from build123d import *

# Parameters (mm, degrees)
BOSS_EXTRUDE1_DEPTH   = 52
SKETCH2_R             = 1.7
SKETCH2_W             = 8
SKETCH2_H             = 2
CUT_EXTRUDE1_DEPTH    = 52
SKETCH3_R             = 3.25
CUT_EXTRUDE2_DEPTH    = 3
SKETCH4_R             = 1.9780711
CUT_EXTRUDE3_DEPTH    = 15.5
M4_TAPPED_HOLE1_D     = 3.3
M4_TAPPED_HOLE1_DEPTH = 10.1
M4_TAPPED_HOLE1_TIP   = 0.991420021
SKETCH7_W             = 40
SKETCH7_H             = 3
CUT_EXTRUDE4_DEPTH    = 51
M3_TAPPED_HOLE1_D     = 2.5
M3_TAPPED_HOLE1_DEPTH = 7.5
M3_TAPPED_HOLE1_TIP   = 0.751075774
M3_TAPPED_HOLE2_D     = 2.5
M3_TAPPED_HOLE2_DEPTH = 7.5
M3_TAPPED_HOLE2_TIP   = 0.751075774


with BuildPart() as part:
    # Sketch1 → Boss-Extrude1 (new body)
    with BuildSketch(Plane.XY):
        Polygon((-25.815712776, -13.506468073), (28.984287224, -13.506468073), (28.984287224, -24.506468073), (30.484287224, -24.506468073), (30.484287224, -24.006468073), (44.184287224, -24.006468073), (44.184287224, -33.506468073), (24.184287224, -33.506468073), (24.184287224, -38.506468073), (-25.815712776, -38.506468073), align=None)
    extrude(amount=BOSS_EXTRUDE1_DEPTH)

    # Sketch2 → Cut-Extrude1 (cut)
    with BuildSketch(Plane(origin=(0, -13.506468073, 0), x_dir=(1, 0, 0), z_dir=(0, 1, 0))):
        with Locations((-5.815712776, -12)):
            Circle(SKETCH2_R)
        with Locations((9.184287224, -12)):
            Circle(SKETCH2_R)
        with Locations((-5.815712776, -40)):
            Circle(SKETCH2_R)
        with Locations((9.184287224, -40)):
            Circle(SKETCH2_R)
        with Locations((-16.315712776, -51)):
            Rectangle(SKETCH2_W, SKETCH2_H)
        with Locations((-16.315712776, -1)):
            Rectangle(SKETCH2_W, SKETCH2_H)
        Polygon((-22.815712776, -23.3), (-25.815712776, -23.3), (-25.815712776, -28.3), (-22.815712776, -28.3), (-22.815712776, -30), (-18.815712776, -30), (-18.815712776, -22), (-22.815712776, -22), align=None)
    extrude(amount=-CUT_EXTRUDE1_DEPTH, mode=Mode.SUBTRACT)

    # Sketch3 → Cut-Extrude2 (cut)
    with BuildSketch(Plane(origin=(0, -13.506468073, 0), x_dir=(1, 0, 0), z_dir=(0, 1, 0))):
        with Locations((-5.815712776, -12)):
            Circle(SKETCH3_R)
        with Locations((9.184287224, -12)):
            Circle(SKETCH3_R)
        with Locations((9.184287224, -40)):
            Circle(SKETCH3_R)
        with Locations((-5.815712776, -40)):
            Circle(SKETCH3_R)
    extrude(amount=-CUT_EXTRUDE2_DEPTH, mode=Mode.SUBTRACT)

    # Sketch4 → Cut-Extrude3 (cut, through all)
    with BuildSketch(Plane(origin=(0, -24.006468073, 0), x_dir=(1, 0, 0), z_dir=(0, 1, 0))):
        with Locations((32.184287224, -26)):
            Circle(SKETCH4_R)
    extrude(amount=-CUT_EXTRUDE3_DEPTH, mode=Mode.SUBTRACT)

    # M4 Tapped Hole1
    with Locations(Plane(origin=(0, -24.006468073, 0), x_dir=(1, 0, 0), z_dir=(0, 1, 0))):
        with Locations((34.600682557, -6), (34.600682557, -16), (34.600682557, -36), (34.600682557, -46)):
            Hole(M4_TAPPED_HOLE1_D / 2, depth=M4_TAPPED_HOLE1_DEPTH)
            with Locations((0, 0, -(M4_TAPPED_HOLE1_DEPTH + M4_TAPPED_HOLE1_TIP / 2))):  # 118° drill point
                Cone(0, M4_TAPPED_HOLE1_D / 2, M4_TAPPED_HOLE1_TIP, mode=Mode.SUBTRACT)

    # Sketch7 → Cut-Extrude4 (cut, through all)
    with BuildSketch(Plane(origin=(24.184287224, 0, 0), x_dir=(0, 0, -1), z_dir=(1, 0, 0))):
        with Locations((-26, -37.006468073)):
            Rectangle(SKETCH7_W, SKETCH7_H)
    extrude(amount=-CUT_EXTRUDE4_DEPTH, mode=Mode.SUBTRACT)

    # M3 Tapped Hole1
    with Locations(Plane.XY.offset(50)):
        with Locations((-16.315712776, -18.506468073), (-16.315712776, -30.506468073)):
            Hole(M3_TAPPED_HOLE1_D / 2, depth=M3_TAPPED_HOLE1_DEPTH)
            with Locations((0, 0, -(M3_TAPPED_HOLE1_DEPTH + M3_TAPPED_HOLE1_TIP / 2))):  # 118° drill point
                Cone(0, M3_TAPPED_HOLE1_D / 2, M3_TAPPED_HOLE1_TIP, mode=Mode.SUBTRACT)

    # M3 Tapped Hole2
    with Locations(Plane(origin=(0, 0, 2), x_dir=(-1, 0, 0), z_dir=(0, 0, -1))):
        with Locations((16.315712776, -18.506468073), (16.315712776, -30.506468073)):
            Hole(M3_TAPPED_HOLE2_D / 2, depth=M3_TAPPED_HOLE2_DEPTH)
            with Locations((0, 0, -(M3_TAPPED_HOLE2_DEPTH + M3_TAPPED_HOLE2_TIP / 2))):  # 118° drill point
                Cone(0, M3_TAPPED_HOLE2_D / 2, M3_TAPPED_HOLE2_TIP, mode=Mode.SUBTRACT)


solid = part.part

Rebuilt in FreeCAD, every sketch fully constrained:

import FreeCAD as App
import Part
import Sketcher

V = App.Vector


def add_polygon(sketch, points):
    """Adds a closed chain of lines whose ends are joined by coincident constraints."""
    first, n = sketch.GeometryCount, len(points)
    for a, b in zip(points, points[1:] + points[:1]):
        sketch.addGeometry(Part.LineSegment(App.Vector(*a, 0), App.Vector(*b, 0)), False)
    for i in range(n):
        sketch.addConstraint(Sketcher.Constraint("Coincident", first + i, 2, first + (i + 1) % n, 1))

doc = App.newDocument("Part")
body = doc.addObject("PartDesign::Body", "Body")

# Sketch on XY plane
sketch1 = body.newObject("Sketcher::SketchObject", "Sketch")
sketch1.AttachmentSupport = (doc.getObject("XY_Plane"), [""])
sketch1.MapMode = "FlatFace"
add_polygon(sketch1, [(29, -13.5), (-25.8, -13.5), (-25.8, -38.5), (24.2, -38.5), (24.2, -33.5), (44.2, -33.5), (44.2, -24), (30.5, -24), (30.5, -24.5), (29, -24.5)])  # lines 0-9
sketch1.addConstraint([
    Sketcher.Constraint("Horizontal", 0),
    Sketcher.Constraint("Vertical", 1),
    Sketcher.Constraint("Horizontal", 2),
    Sketcher.Constraint("Vertical", 3),
    Sketcher.Constraint("Horizontal", 4),
    Sketcher.Constraint("Vertical", 5),
    Sketcher.Constraint("Horizontal", 6),
    Sketcher.Constraint("Vertical", 7),
    Sketcher.Constraint("Horizontal", 8),
    Sketcher.Constraint("Vertical", 9),
    Sketcher.Constraint("DistanceX", 2, 1, 2, 2, 50.0),
    Sketcher.Constraint("DistanceX", 4, 1, 4, 2, 20.0),
    Sketcher.Constraint("DistanceY", 1, 2, 1, 1, 25.0),
    Sketcher.Constraint("DistanceY", 3, 1, 3, 2, 5.0),
    Sketcher.Constraint("DistanceY", 9, 1, 9, 2, 11.0),
    Sketcher.Constraint("DistanceX", 0, 2, 0, 1, 54.8),
    Sketcher.Constraint("DistanceX", 6, 2, 6, 1, 13.7),
    Sketcher.Constraint("DistanceY", 5, 1, 5, 2, 9.5),
    Sketcher.Constraint("DistanceY", 0, 2, -1, 1, 13.506468),
    Sketcher.Constraint("DistanceX", 0, 2, -1, 1, 25.815713),
])
pad1 = body.newObject("PartDesign::Pad", "Pad")
pad1.Profile = sketch1
pad1.Length = 52

# Sketch on XZ plane
sketch2 = body.newObject("Sketcher::SketchObject", "Sketch001")
sketch2.AttachmentSupport = (doc.getObject("XZ_Plane"), [""])
sketch2.MapMode = "FlatFace"
sketch2.AttachmentOffset = App.Placement(V(0, 0, 13.506468), App.Rotation())
sketch2.addGeometry(Part.Circle(V(-5.8, 12, 0), V(0, 0, 1), 1.7), False)  # 0
sketch2.addGeometry(Part.Circle(V(9.2, 12, 0), V(0, 0, 1), 1.7), False)  # 1
sketch2.addGeometry(Part.Circle(V(-5.8, 40, 0), V(0, 0, 1), 1.7), False)  # 2
sketch2.addGeometry(Part.Circle(V(9.2, 40, 0), V(0, 0, 1), 1.7), False)  # 3
add_polygon(sketch2, [(-20.3, 50), (-20.3, 52), (-12.3, 52), (-12.3, 50)])  # lines 4-7
add_polygon(sketch2, [(-20.3, 0), (-20.3, 2), (-12.3, 2), (-12.3, 0)])  # lines 8-11
add_polygon(sketch2, [(-22.8, 23.3), (-25.8, 23.3), (-25.8, 28.3), (-22.8, 28.3), (-22.8, 30), (-18.8, 30), (-18.8, 22), (-22.8, 22)])  # lines 12-19
sketch2.addConstraint([
    Sketcher.Constraint("Vertical", 4),
    Sketcher.Constraint("Horizontal", 5),
    Sketcher.Constraint("Vertical", 6),
    Sketcher.Constraint("Horizontal", 7),
    Sketcher.Constraint("Vertical", 8),
    Sketcher.Constraint("Horizontal", 9),
    Sketcher.Constraint("Vertical", 10),
    Sketcher.Constraint("Horizontal", 11),
    Sketcher.Constraint("Horizontal", 12),
    Sketcher.Constraint("Vertical", 13),
    Sketcher.Constraint("Horizontal", 14),
    Sketcher.Constraint("Vertical", 15),
    Sketcher.Constraint("Horizontal", 16),
    Sketcher.Constraint("Vertical", 17),
    Sketcher.Constraint("Horizontal", 18),
    Sketcher.Constraint("Vertical", 19),
    Sketcher.Constraint("Equal", 0, 1),
    Sketcher.Constraint("Equal", 1, 2),
    Sketcher.Constraint("Equal", 2, 3),
    Sketcher.Constraint("PointOnObject", 10, 2, -1),
    Sketcher.Constraint("Horizontal", 0, 3, 1, 3),
    Sketcher.Constraint("Horizontal", 2, 3, 3, 3),
    Sketcher.Constraint("Vertical", 0, 3, 2, 3),
    Sketcher.Constraint("Vertical", 1, 3, 3, 3),
    Sketcher.Constraint("Vertical", 7, 2, 8, 2),
    Sketcher.Constraint("Vertical", 6, 2, 9, 2),
    Sketcher.Constraint("Vertical", 15, 2, 18, 2),
    Sketcher.Constraint("Equal", 6, 8),
    Sketcher.Constraint("Equal", 11, 17),
    Sketcher.Constraint("Diameter", 0, 3.4),
    Sketcher.Constraint("DistanceX", 5, 1, 5, 2, 8.0),
    Sketcher.Constraint("DistanceX", 12, 2, 12, 1, 3.0),
    Sketcher.Constraint("DistanceX", 16, 1, 16, 2, 4.0),
    Sketcher.Constraint("DistanceY", 4, 1, 4, 2, 2.0),
    Sketcher.Constraint("DistanceY", 13, 1, 13, 2, 5.0),
    Sketcher.Constraint("DistanceY", 15, 1, 15, 2, 1.7),
    Sketcher.Constraint("DistanceY", -1, 1, 0, 3, 12.0),
    Sketcher.Constraint("DistanceY", -1, 1, 2, 3, 40.0),
    Sketcher.Constraint("DistanceY", -1, 1, 4, 2, 52.0),
    Sketcher.Constraint("DistanceY", -1, 1, 15, 2, 30.0),
    Sketcher.Constraint("DistanceX", 0, 3, 1, 3, 15.0),
    Sketcher.Constraint("DistanceX", 12, 2, 0, 3, 20.0),
    Sketcher.Constraint("DistanceX", 4, 2, 2, 3, 14.5),
    Sketcher.Constraint("DistanceX", 0, 3, -1, 1, 5.815713),
])
pocket1 = body.newObject("PartDesign::Pocket", "Pocket")
pocket1.Profile = sketch2
pocket1.Length = 52
pocket1.Reversed = True

# Sketch on XZ plane
sketch3 = body.newObject("Sketcher::SketchObject", "Sketch002")
sketch3.AttachmentSupport = (doc.getObject("XZ_Plane"), [""])
sketch3.MapMode = "FlatFace"
sketch3.AttachmentOffset = App.Placement(V(0, 0, 13.506468), App.Rotation())
sketch3.addGeometry([
    Part.Circle(V(-5.8, 12, 0), V(0, 0, 1), 3.2),
    Part.Circle(V(9.2, 12, 0), V(0, 0, 1), 3.2),
    Part.Circle(V(9.2, 40, 0), V(0, 0, 1), 3.2),
    Part.Circle(V(-5.8, 40, 0), V(0, 0, 1), 3.2),
], False)
sketch3.addConstraint([
    Sketcher.Constraint("Equal", 0, 1),
    Sketcher.Constraint("Equal", 1, 2),
    Sketcher.Constraint("Equal", 2, 3),
    Sketcher.Constraint("Horizontal", 0, 3, 1, 3),
    Sketcher.Constraint("Horizontal", 2, 3, 3, 3),
    Sketcher.Constraint("Vertical", 1, 3, 2, 3),
    Sketcher.Constraint("Vertical", 0, 3, 3, 3),
    Sketcher.Constraint("Diameter", 0, 6.5),
    Sketcher.Constraint("DistanceY", -1, 1, 0, 3, 12.0),
    Sketcher.Constraint("DistanceY", -1, 1, 2, 3, 40.0),
    Sketcher.Constraint("DistanceX", 0, 3, 1, 3, 15.0),
    Sketcher.Constraint("DistanceX", 0, 3, -1, 1, 5.815713),
])
pocket2 = body.newObject("PartDesign::Pocket", "Pocket001")
pocket2.Profile = sketch3
pocket2.Length = 3
pocket2.Reversed = True

# Sketch on XZ plane
sketch4 = body.newObject("Sketcher::SketchObject", "Sketch003")
sketch4.AttachmentSupport = (doc.getObject("XZ_Plane"), [""])
sketch4.MapMode = "FlatFace"
sketch4.AttachmentOffset = App.Placement(V(0, 0, 24.006468), App.Rotation())
sketch4.addGeometry(Part.Circle(V(32.2, 26, 0), V(0, 0, 1), 2), False)
sketch4.addConstraint([
    Sketcher.Constraint("DistanceY", -1, 1, 0, 3, 26.0),
    Sketcher.Constraint("Diameter", 0, 3.956142),
    Sketcher.Constraint("DistanceX", -1, 1, 0, 3, 32.184287),
])
pocket3 = body.newObject("PartDesign::Pocket", "Pocket002")
pocket3.Profile = sketch4
pocket3.Type = "ThroughAll"
pocket3.Reversed = True

# Sketch on XZ plane
sketch5 = body.newObject("Sketcher::SketchObject", "Sketch004")
sketch5.AttachmentSupport = (doc.getObject("XZ_Plane"), [""])
sketch5.MapMode = "FlatFace"
sketch5.AttachmentOffset = App.Placement(V(0, 0, 24.006468), App.Rotation())
sketch5.addGeometry([
    Part.Circle(V(34.6, 6, 0), V(0, 0, 1), 1.6),
    Part.Circle(V(34.6, 16, 0), V(0, 0, 1), 1.6),
    Part.Circle(V(34.6, 36, 0), V(0, 0, 1), 1.6),
    Part.Circle(V(34.6, 46, 0), V(0, 0, 1), 1.6),
], False)
sketch5.addConstraint([
    Sketcher.Constraint("Equal", 0, 1),
    Sketcher.Constraint("Equal", 1, 2),
    Sketcher.Constraint("Equal", 2, 3),
    Sketcher.Constraint("Vertical", 0, 3, 1, 3),
    Sketcher.Constraint("Vertical", 1, 3, 2, 3),
    Sketcher.Constraint("Vertical", 2, 3, 3, 3),
    Sketcher.Constraint("Diameter", 0, 3.3),
    Sketcher.Constraint("DistanceY", -1, 1, 0, 3, 6.0),
    Sketcher.Constraint("DistanceY", -1, 1, 1, 3, 16.0),
    Sketcher.Constraint("DistanceY", -1, 1, 2, 3, 36.0),
    Sketcher.Constraint("DistanceY", -1, 1, 3, 3, 46.0),
    Sketcher.Constraint("DistanceX", -1, 1, 0, 3, 34.600683),
])
doc.recompute()
hole = body.newObject("PartDesign::Hole", "Hole")
hole.Profile = sketch5
hole.ThreadType = "None"
hole.Diameter = 3.3
hole.DepthType = "Dimension"
hole.Depth = 10.1
hole.DrillPoint = "Angled"
hole.DrillPointAngle = 118
hole.Reversed = True

# Sketch on YZ plane
sketch6 = body.newObject("Sketcher::SketchObject", "Sketch005")
sketch6.AttachmentSupport = (doc.getObject("YZ_Plane"), [""])
sketch6.MapMode = "FlatFace"
sketch6.AttachmentOffset = App.Placement(V(0, 0, 24.184287), App.Rotation())
add_polygon(sketch6, [(-35.5, 46), (-38.5, 46), (-38.5, 6), (-35.5, 6)])  # lines 0-3
sketch6.addConstraint([
    Sketcher.Constraint("Horizontal", 0),
    Sketcher.Constraint("Vertical", 1),
    Sketcher.Constraint("Horizontal", 2),
    Sketcher.Constraint("Vertical", 3),
    Sketcher.Constraint("DistanceX", 0, 2, 0, 1, 3.0),
    Sketcher.Constraint("DistanceY", 1, 2, 1, 1, 40.0),
    Sketcher.Constraint("DistanceY", -1, 1, 0, 2, 46.0),
    Sketcher.Constraint("DistanceX", 0, 2, -1, 1, 38.506468),
])
pocket4 = body.newObject("PartDesign::Pocket", "Pocket003")
pocket4.Profile = sketch6
pocket4.Type = "ThroughAll"

# Sketch on XY plane
sketch7 = body.newObject("Sketcher::SketchObject", "Sketch006")
sketch7.AttachmentSupport = (doc.getObject("XY_Plane"), [""])
sketch7.MapMode = "FlatFace"
sketch7.AttachmentOffset = App.Placement(V(0, 0, 50), App.Rotation())
sketch7.addGeometry([
    Part.Circle(V(-16.3, -18.5, 0), V(0, 0, 1), 1.2),
    Part.Circle(V(-16.3, -30.5, 0), V(0, 0, 1), 1.2),
], False)
sketch7.addConstraint([
    Sketcher.Constraint("Equal", 0, 1),
    Sketcher.Constraint("Vertical", 0, 3, 1, 3),
    Sketcher.Constraint("Diameter", 0, 2.5),
    Sketcher.Constraint("DistanceY", 1, 3, 0, 3, 12.0),
    Sketcher.Constraint("DistanceY", 0, 3, -1, 1, 18.506468),
    Sketcher.Constraint("DistanceX", 0, 3, -1, 1, 16.315713),
])
doc.recompute()
hole2 = body.newObject("PartDesign::Hole", "Hole001")
hole2.Profile = sketch7
hole2.ThreadType = "None"
hole2.Diameter = 2.5
hole2.DepthType = "Dimension"
hole2.Depth = 7.5
hole2.DrillPoint = "Angled"
hole2.DrillPointAngle = 118

# Sketch on XY plane
sketch8 = body.newObject("Sketcher::SketchObject", "Sketch007")
sketch8.AttachmentSupport = (doc.getObject("XY_Plane"), [""])
sketch8.MapMode = "FlatFace"
sketch8.AttachmentOffset = App.Placement(V(0, 0, 2), App.Rotation())
sketch8.addGeometry([
    Part.Circle(V(-16.3, -18.5, 0), V(0, 0, 1), 1.2),
    Part.Circle(V(-16.3, -30.5, 0), V(0, 0, 1), 1.2),
], False)
sketch8.addConstraint([
    Sketcher.Constraint("Equal", 0, 1),
    Sketcher.Constraint("Vertical", 0, 3, 1, 3),
    Sketcher.Constraint("Diameter", 0, 2.5),
    Sketcher.Constraint("DistanceY", 1, 3, 0, 3, 12.0),
    Sketcher.Constraint("DistanceY", 0, 3, -1, 1, 18.506468),
    Sketcher.Constraint("DistanceX", 0, 3, -1, 1, 16.315713),
])
doc.recompute()
hole3 = body.newObject("PartDesign::Hole", "Hole002")
hole3.Profile = sketch8
hole3.ThreadType = "None"
hole3.Diameter = 2.5
hole3.DepthType = "Dimension"
hole3.Depth = 7.5
hole3.DrillPoint = "Angled"
hole3.DrillPointAngle = 118
hole3.Reversed = True

doc.recompute()
